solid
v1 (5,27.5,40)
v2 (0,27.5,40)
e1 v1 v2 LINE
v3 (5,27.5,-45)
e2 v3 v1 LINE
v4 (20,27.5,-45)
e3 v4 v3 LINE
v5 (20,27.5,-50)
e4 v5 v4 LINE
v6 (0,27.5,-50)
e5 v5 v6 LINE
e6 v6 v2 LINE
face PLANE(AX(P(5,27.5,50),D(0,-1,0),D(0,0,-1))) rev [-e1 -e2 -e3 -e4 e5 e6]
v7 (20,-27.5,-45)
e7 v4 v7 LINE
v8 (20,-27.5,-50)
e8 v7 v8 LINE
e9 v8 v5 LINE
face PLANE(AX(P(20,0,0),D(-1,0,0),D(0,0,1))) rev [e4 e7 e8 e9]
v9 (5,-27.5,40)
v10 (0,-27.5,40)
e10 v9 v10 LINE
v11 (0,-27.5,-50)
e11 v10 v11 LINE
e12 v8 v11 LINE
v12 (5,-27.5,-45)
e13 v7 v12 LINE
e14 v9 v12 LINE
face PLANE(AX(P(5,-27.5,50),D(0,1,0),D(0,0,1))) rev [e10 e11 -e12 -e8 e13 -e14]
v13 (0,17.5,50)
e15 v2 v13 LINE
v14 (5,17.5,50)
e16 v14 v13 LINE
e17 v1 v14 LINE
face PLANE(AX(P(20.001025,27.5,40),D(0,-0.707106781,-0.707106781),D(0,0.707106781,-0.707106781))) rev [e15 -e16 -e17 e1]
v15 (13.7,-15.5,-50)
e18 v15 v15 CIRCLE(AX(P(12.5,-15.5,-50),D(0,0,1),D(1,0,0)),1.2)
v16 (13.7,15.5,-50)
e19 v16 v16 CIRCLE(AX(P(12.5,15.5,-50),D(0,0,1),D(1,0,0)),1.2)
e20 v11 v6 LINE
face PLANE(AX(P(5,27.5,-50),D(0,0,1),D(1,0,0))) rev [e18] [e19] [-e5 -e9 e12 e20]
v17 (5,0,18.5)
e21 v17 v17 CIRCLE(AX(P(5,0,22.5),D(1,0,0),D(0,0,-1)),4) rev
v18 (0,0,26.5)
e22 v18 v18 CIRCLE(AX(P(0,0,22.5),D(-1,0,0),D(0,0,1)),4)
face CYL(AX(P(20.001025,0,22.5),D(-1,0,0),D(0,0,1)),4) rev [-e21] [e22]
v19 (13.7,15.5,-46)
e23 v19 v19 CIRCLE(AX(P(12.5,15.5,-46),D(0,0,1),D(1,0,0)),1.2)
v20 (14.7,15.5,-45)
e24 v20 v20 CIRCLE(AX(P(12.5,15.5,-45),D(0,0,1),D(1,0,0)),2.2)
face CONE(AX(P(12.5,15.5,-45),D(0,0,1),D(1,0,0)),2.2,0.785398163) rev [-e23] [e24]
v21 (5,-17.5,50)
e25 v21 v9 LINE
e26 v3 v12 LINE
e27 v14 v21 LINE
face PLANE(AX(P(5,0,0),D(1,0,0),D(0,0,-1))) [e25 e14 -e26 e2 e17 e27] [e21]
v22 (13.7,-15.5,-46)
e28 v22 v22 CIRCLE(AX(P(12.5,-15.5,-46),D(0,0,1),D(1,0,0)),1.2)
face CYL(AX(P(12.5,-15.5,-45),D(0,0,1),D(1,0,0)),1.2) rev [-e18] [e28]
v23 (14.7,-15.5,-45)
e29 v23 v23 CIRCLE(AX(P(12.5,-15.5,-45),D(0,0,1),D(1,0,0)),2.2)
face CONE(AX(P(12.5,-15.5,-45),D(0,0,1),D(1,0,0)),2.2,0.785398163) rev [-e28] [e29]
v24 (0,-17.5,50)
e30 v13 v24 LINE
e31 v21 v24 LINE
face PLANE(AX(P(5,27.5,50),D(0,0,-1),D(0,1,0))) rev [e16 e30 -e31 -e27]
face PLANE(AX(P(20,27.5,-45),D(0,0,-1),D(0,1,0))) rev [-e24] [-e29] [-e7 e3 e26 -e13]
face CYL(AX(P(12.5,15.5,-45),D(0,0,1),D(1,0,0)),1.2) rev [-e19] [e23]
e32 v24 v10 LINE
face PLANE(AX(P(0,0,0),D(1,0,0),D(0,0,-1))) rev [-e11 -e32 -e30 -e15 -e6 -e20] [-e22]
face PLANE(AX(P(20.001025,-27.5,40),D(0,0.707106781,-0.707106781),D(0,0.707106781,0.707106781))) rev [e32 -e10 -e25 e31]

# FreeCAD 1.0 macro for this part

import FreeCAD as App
import Part
import Sketcher

doc = App.newDocument("Part")
body = doc.addObject("PartDesign::Body", "Body")

sketch1 = body.newObject("Sketcher::SketchObject", "Sketch")
sketch1.AttachmentSupport = (doc.getObject("YZ_Plane"), [""])
sketch1.MapMode = "FlatFace"
sketch1.addGeometry([
    Part.LineSegment(App.Vector(28, 50, 0), App.Vector(-28, 50, 0)),
    Part.LineSegment(App.Vector(-28, 50, 0), App.Vector(-28, -50, 0)),
    Part.LineSegment(App.Vector(-28, -50, 0), App.Vector(28, -50, 0)),
    Part.LineSegment(App.Vector(28, -50, 0), App.Vector(28, 50, 0)),
], False)
sketch1.addConstraint([
    Sketcher.Constraint("Coincident", 0, 2, 1, 1),
    Sketcher.Constraint("Coincident", 1, 2, 2, 1),
    Sketcher.Constraint("Coincident", 2, 2, 3, 1),
    Sketcher.Constraint("Coincident", 3, 2, 0, 1),
    Sketcher.Constraint("Horizontal", 0),
    Sketcher.Constraint("Vertical", 1),
    Sketcher.Constraint("Horizontal", 2),
    Sketcher.Constraint("Vertical", 3),
    Sketcher.Constraint("Symmetric", 0, 2, 2, 2, -1, 1),
    Sketcher.Constraint("DistanceX", 0, 2, 0, 1, 55.0),
    Sketcher.Constraint("DistanceY", 1, 2, 1, 1, 100.0),
])
pad1 = body.newObject("PartDesign::Pad", "Pad")
pad1.Profile = sketch1
pad1.Length = 5

sketch2 = body.newObject("Sketcher::SketchObject", "Sketch001")
sketch2.AttachmentSupport = (doc.getObject("YZ_Plane"), [""])
sketch2.MapMode = "FlatFace"
sketch2.AttachmentOffset = App.Placement(App.Vector(0, 0, 5), App.Rotation())
sketch2.addGeometry([
    Part.LineSegment(App.Vector(28, -45, 0), App.Vector(-28, -45, 0)),
    Part.LineSegment(App.Vector(-28, -45, 0), App.Vector(-28, -50, 0)),
    Part.LineSegment(App.Vector(-28, -50, 0), App.Vector(28, -50, 0)),
    Part.LineSegment(App.Vector(28, -50, 0), App.Vector(28, -45, 0)),
], False)
sketch2.addConstraint([
    Sketcher.Constraint("Coincident", 0, 2, 1, 1),
    Sketcher.Constraint("Coincident", 1, 2, 2, 1),
    Sketcher.Constraint("Coincident", 2, 2, 3, 1),
    Sketcher.Constraint("Coincident", 3, 2, 0, 1),
    Sketcher.Constraint("Horizontal", 0),
    Sketcher.Constraint("Vertical", 1),
    Sketcher.Constraint("Horizontal", 2),
    Sketcher.Constraint("Vertical", 3),
    Sketcher.Constraint("DistanceX", 0, 2, 0, 1, 55.0),
    Sketcher.Constraint("DistanceY", 1, 2, 1, 1, 5.0),
    Sketcher.Constraint("DistanceY", 0, 2, -1, 1, 45.0),
    Sketcher.Constraint("DistanceX", 0, 2, -1, 1, 27.5),
])
pad2 = body.newObject("PartDesign::Pad", "Pad001")
pad2.Profile = sketch2
pad2.Length = 15

sketch3 = body.newObject("Sketcher::SketchObject", "Sketch002")
sketch3.AttachmentSupport = (doc.getObject("YZ_Plane"), [""])
sketch3.MapMode = "FlatFace"
sketch3.addGeometry([
    Part.LineSegment(App.Vector(28, 50, 0), App.Vector(28, 40, 0)),
    Part.LineSegment(App.Vector(28, 40, 0), App.Vector(18, 50, 0)),
    Part.LineSegment(App.Vector(18, 50, 0), App.Vector(28, 50, 0)),
], False)
sketch3.addConstraint([
    Sketcher.Constraint("Coincident", 0, 2, 1, 1),
    Sketcher.Constraint("Coincident", 1, 2, 2, 1),
    Sketcher.Constraint("Coincident", 2, 2, 0, 1),
    Sketcher.Constraint("Vertical", 0),
    Sketcher.Constraint("Horizontal", 2),
    Sketcher.Constraint("Equal", 2, 0),
    Sketcher.Constraint("DistanceX", 2, 1, 2, 2, 10.0),
    Sketcher.Constraint("DistanceY", -1, 1, 0, 2, 40.0),
    Sketcher.Constraint("DistanceX", -1, 1, 0, 2, 27.5),
])
pocket1 = body.newObject("PartDesign::Pocket", "Pocket")
pocket1.Profile = sketch3
pocket1.Type = "UpToFirst"
pocket1.Reversed = True

sketch4 = body.newObject("Sketcher::SketchObject", "Sketch003")
sketch4.AttachmentSupport = (doc.getObject("YZ_Plane"), [""])
sketch4.MapMode = "FlatFace"
sketch4.addGeometry([
    Part.LineSegment(App.Vector(-28, 40, 0), App.Vector(-28, 50, 0)),
    Part.LineSegment(App.Vector(-28, 50, 0), App.Vector(-18, 50, 0)),
    Part.LineSegment(App.Vector(-18, 50, 0), App.Vector(-28, 40, 0)),
], False)
sketch4.addConstraint([
    Sketcher.Constraint("Coincident", 0, 2, 1, 1),
    Sketcher.Constraint("Coincident", 1, 2, 2, 1),
    Sketcher.Constraint("Coincident", 2, 2, 0, 1),
    Sketcher.Constraint("Vertical", 0),
    Sketcher.Constraint("Horizontal", 1),
    Sketcher.Constraint("Equal", 1, 0),
    Sketcher.Constraint("DistanceX", 1, 1, 1, 2, 10.0),
    Sketcher.Constraint("DistanceY", -1, 1, 0, 2, 50.0),
    Sketcher.Constraint("DistanceX", 0, 2, -1, 1, 27.5),
])
pocket2 = body.newObject("PartDesign::Pocket", "Pocket001")
pocket2.Profile = sketch4
pocket2.Type = "UpToFirst"
pocket2.Reversed = True

sketch5 = body.newObject("Sketcher::SketchObject", "Sketch004")
sketch5.AttachmentSupport = (doc.getObject("XY_Plane"), [""])
sketch5.MapMode = "FlatFace"
sketch5.AttachmentOffset = App.Placement(App.Vector(0, 0, -45), App.Rotation())
sketch5.addGeometry([
    Part.Circle(App.Vector(12.5, 15.5, 0), App.Vector(0, 0, 1), 1.2),
    Part.Circle(App.Vector(12.5, -15.5, 0), App.Vector(0, 0, 1), 1.2),
], False)
sketch5.addConstraint([
    Sketcher.Constraint("Equal", 0, 1),
    Sketcher.Constraint("Symmetric", 0, 3, 1, 3, -1),
    Sketcher.Constraint("Diameter", 0, 2.4),
    Sketcher.Constraint("DistanceY", 1, 3, 0, 3, 31.0),
    Sketcher.Constraint("DistanceX", -1, 1, 0, 3, 12.5),
])
doc.recompute()
hole = body.newObject("PartDesign::Hole", "Hole")
hole.Profile = sketch5
hole.ThreadType = "None"
hole.Diameter = 2.4
hole.DepthType = "ThroughAll"
hole.HoleCutType = "Countersink"
hole.HoleCutDiameter = 4.4
hole.HoleCutCountersinkAngle = 90

sketch6 = body.newObject("Sketcher::SketchObject", "Sketch005")
sketch6.AttachmentSupport = (doc.getObject("YZ_Plane"), [""])
sketch6.MapMode = "FlatFace"
sketch6.addGeometry(Part.Circle(App.Vector(0, 22.5, 0), App.Vector(0, 0, 1), 4), False)
sketch6.addConstraint([
    Sketcher.Constraint("PointOnObject", 0, 3, -2),
    Sketcher.Constraint("Diameter", 0, 8.0),
    Sketcher.Constraint("DistanceY", -1, 1, 0, 3, 22.5),
])
pocket3 = body.newObject("PartDesign::Pocket", "Pocket002")
pocket3.Profile = sketch6
pocket3.Type = "UpToFirst"
pocket3.Reversed = True

doc.recompute()
